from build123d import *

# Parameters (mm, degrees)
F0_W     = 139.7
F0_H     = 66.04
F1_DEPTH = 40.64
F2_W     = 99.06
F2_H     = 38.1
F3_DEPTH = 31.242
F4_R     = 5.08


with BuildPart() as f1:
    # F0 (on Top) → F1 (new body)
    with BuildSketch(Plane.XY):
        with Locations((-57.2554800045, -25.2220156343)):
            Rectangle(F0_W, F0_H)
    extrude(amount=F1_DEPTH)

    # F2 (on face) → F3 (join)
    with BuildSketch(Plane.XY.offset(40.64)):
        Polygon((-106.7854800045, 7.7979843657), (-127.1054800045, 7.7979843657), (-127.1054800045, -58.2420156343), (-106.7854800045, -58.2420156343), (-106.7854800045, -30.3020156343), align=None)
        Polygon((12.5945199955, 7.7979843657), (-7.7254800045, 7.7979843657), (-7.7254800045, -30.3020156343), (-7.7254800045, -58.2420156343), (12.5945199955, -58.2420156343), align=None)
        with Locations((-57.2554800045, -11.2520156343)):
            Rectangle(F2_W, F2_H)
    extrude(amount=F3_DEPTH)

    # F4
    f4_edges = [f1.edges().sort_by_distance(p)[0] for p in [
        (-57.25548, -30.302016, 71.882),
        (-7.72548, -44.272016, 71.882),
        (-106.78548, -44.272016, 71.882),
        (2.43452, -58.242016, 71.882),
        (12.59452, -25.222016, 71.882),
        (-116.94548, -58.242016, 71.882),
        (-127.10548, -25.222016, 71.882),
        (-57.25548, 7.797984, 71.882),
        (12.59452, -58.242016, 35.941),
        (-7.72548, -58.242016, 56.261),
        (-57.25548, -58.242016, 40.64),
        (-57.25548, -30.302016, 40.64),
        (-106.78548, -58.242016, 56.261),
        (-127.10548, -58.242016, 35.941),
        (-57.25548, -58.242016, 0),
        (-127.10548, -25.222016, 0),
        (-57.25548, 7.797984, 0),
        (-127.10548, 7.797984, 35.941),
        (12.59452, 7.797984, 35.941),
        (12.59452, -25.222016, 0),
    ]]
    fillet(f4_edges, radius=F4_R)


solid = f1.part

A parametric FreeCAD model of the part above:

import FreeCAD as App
import Part
import Sketcher

V = App.Vector
Q = App.Units.Quantity


def edges_at(feature, points):
    """Names of the edges that pass closest to the given points."""
    edges = feature.Shape.Edges
    near = lambda p: min(range(len(edges)), key=lambda i: edges[i].distToShape(Part.Vertex(*p))[0])
    return sorted({f"Edge{near(p) + 1}" for p in points})

doc = App.newDocument("Part")
body = doc.addObject("PartDesign::Body", "Body")

# Sketch on XY plane
sketch1 = body.newObject("Sketcher::SketchObject", "Sketch")
sketch1.AttachmentSupport = (doc.getObject("XY_Plane"), [""])
sketch1.MapMode = "FlatFace"
sketch1.addGeometry([
    Part.LineSegment(V(-127, 8, 0), V(-127, -58, 0)),
    Part.LineSegment(V(-127, -58, 0), V(13, -58, 0)),
    Part.LineSegment(V(13, -58, 0), V(13, 8, 0)),
    Part.LineSegment(V(13, 8, 0), V(-127, 8, 0)),
], False)
sketch1.addConstraint([
    Sketcher.Constraint("Coincident", 0, 2, 1, 1),
    Sketcher.Constraint("Coincident", 1, 2, 2, 1),
    Sketcher.Constraint("Coincident", 2, 2, 3, 1),
    Sketcher.Constraint("Coincident", 3, 2, 0, 1),
    Sketcher.Constraint("Vertical", 0),
    Sketcher.Constraint("Horizontal", 1),
    Sketcher.Constraint("Vertical", 2),
    Sketcher.Constraint("Horizontal", 3),
    Sketcher.Constraint("DistanceX", 1, 1, 1, 2, Q("5.5 in")),
    Sketcher.Constraint("DistanceY", 0, 2, 0, 1, Q("2.6 in")),
    Sketcher.Constraint("DistanceX", 0, 2, -1, 1, Q("127.10548 mm")),
    Sketcher.Constraint("DistanceY", 0, 2, -1, 1, Q("58.242016 mm")),
])
pad1 = body.newObject("PartDesign::Pad", "Pad")
pad1.Profile = sketch1
pad1.Length = Q("1.6 in")

# Sketch on XY plane
sketch2 = body.newObject("Sketcher::SketchObject", "Sketch001")
sketch2.AttachmentSupport = (doc.getObject("XY_Plane"), [""])
sketch2.MapMode = "FlatFace"
sketch2.AttachmentOffset = App.Placement(V(0, 0, 1.6 * 25.4), App.Rotation())
sketch2.addGeometry([
    Part.LineSegment(V(-127, 8, 0), V(-127, -58, 0)),  # 0
    Part.LineSegment(V(-127, -58, 0), V(-107, -58, 0)),  # 1
    Part.LineSegment(V(-107, -58, 0), V(-107, -30, 0)),  # 2
    Part.LineSegment(V(-107, -30, 0), V(-8, -30, 0)),  # 3
    Part.LineSegment(V(-8, -30, 0), V(-8, -58, 0)),  # 4
    Part.LineSegment(V(-8, -58, 0), V(13, -58, 0)),  # 5
    Part.LineSegment(V(13, -58, 0), V(13, 8, 0)),  # 6
    Part.LineSegment(V(13, 8, 0), V(-127, 8, 0)),  # 7
], False)
sketch2.addConstraint([
    Sketcher.Constraint("Coincident", 0, 2, 1, 1),
    Sketcher.Constraint("Coincident", 1, 2, 2, 1),
    Sketcher.Constraint("Coincident", 2, 2, 3, 1),
    Sketcher.Constraint("Coincident", 3, 2, 4, 1),
    Sketcher.Constraint("Coincident", 4, 2, 5, 1),
    Sketcher.Constraint("Coincident", 5, 2, 6, 1),
    Sketcher.Constraint("Coincident", 6, 2, 7, 1),
    Sketcher.Constraint("Coincident", 7, 2, 0, 1),
    Sketcher.Constraint("Vertical", 0),
    Sketcher.Constraint("Horizontal", 1),
    Sketcher.Constraint("Vertical", 2),
    Sketcher.Constraint("Horizontal", 3),
    Sketcher.Constraint("Vertical", 4),
    Sketcher.Constraint("Horizontal", 5),
    Sketcher.Constraint("Vertical", 6),
    Sketcher.Constraint("Horizontal", 7),
    Sketcher.Constraint("Horizontal", 1, 2, 4, 2),
    Sketcher.Constraint("Equal", 1, 5),
    Sketcher.Constraint("DistanceX", 1, 1, 1, 2, Q("0.8 in")),
    Sketcher.Constraint("DistanceX", 3, 1, 3, 2, Q("3.9 in")),
    Sketcher.Constraint("DistanceY", 0, 2, 0, 1, Q("2.6 in")),
    Sketcher.Constraint("DistanceY", 2, 1, 2, 2, Q("1.1 in")),
    Sketcher.Constraint("DistanceX", 0, 2, -1, 1, Q("127.10548 mm")),
    Sketcher.Constraint("DistanceY", 0, 2, -1, 1, Q("58.242016 mm")),
])
pad2 = body.newObject("PartDesign::Pad", "Pad001")
pad2.Profile = sketch2
pad2.Length = Q("1.23 in")
doc.recompute()

fillet = body.newObject("PartDesign::Fillet", "Fillet")
fillet.Base = (pad2, edges_at(pad2, [
    (-57.255, -30.302, 71.882),
    (-7.725, -44.272, 71.882),
    (-106.785, -44.272, 71.882),
    (2.435, -58.242, 71.882),
    (12.595, -25.222, 71.882),
    (-116.945, -58.242, 71.882),
    (-127.105, -25.222, 71.882),
    (-57.255, 7.798, 71.882),
    (12.595, -58.242, 35.941),
    (-7.725, -58.242, 56.261),
    (-57.255, -58.242, 40.64),
    (-57.255, -30.302, 40.64),
    (-106.785, -58.242, 56.261),
    (-127.105, -58.242, 35.941),
    (-57.255, -58.242, 0),
    (-127.105, -25.222, 0),
    (-57.255, 7.798, 0),
    (-127.105, 7.798, 35.941),
    (12.595, 7.798, 35.941),
    (12.595, -25.222, 0),
]))
fillet.Radius = Q("0.2 in")

doc.recompute()
